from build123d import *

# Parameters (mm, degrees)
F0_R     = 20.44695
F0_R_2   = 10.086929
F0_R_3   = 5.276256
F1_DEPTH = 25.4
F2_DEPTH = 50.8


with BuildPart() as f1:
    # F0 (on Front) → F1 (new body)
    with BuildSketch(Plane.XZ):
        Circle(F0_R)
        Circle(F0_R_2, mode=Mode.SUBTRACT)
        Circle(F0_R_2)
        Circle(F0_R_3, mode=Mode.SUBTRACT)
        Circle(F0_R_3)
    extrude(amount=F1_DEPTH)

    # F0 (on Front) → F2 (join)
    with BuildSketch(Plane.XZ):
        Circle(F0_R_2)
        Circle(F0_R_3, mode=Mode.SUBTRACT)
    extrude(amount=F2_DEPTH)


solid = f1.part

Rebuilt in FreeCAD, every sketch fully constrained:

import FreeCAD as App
import Part
import Sketcher
Q = App.Units.Quantity

doc = App.newDocument("Part")
body = doc.addObject("PartDesign::Body", "Body")

# Sketch on XZ plane
sketch1 = doc.addObject("Sketcher::SketchObject", "Sketch")
body.addObject(sketch1)
sketch1.AttachmentSupport = (doc.XZ_Plane, [""])
sketch1.MapMode = "FlatFace"
sketch1.addGeometry(Part.Circle(App.Vector(0, 0, 0), App.Vector(0, 0, 1), 20), False)
sketch1.addConstraint([
    Sketcher.Constraint("Coincident", 0, 3, -1, 1),
    Sketcher.Constraint("Diameter", 0, Q("40.8939 mm")),
])
pad1 = doc.addObject("PartDesign::Pad", "Pad")
body.addObject(pad1)
pad1.Profile = sketch1
pad1.Length = Q("1 in")

# Sketch on XZ plane
sketch2 = doc.addObject("Sketcher::SketchObject", "Sketch001")
body.addObject(sketch2)
sketch2.AttachmentSupport = (doc.XZ_Plane, [""])
sketch2.MapMode = "FlatFace"
sketch2.addGeometry([
    Part.Circle(App.Vector(0, 0, 0), App.Vector(0, 0, 1), 10),
    Part.Circle(App.Vector(0, 0, 0), App.Vector(0, 0, 1), 5),
], False)
sketch2.addConstraint([
    Sketcher.Constraint("Coincident", 0, 3, -1, 1),
    Sketcher.Constraint("Coincident", 1, 3, -1, 1),
    Sketcher.Constraint("Diameter", 0, Q("20.173858 mm")),
    Sketcher.Constraint("Diameter", 1, Q("10.552512 mm")),
])
pad2 = doc.addObject("PartDesign::Pad", "Pad001")
body.addObject(pad2)
pad2.Profile = sketch2
pad2.Length = Q("2 in")

doc.recompute()
